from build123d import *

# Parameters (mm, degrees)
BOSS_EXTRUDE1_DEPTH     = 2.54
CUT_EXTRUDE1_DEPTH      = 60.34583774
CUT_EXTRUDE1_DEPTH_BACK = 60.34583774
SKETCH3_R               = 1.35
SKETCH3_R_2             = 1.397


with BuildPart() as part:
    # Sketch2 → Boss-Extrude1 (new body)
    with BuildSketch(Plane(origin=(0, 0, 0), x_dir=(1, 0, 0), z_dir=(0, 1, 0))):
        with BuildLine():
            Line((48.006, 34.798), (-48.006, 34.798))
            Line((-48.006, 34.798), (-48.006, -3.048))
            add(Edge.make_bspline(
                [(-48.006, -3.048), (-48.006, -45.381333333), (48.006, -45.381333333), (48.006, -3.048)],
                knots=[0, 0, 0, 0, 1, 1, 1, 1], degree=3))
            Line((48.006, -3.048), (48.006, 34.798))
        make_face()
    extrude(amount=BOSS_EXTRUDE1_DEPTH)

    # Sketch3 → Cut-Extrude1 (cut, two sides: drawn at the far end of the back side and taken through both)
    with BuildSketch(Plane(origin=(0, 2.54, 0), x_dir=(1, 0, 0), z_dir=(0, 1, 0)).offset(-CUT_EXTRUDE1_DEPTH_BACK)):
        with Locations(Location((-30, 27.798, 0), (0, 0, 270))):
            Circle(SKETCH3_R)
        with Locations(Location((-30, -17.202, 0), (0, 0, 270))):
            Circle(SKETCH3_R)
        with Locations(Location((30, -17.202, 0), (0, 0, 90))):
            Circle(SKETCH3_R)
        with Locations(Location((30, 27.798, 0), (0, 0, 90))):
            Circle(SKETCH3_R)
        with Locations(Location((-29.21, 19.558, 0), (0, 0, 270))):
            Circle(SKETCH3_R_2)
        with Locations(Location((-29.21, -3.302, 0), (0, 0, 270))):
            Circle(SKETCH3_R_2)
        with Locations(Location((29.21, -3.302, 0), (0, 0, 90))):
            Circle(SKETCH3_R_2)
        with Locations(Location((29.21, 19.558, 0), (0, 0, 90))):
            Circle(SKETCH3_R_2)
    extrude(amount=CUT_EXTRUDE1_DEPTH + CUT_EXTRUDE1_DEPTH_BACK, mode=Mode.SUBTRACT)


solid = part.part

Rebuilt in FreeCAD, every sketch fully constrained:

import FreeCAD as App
import Part
import Sketcher
from FreeCAD import Vector
Q = App.Units.Quantity

doc = App.newDocument("Part")
body = doc.addObject("PartDesign::Body", "Body")

sketch1 = body.newObject("Sketcher::SketchObject", "Sketch")
sketch1.AttachmentSupport = (doc.getObject("XZ_Plane"), [""])
sketch1.MapMode = "FlatFace"
sketch1.addGeometry([
    Part.LineSegment(Vector(48.006, -34.798, 0), Vector(-48.006, -34.798, 0)),
    Part.LineSegment(Vector(-48.006, -34.798, 0), Vector(-48.006, 3.048, 0)),
    Part.BSplineCurve([Vector(-48.006, 3.048, 0), Vector(-48.006, 45.381333, 0), Vector(48.006, 45.381333, 0), Vector(48.006, 3.048, 0)], [4, 4], [0, 1], False, 3, [1, 1, 1, 1], False),
    Part.LineSegment(Vector(48.006, 3.048, 0), Vector(48.006, -34.798, 0)),
], False)
sketch1.addConstraint([
    Sketcher.Constraint("Block", 2),
    Sketcher.Constraint("Coincident", 0, 2, 1, 1),
    Sketcher.Constraint("Coincident", 1, 2, 2, 1),
    Sketcher.Constraint("Coincident", 2, 2, 3, 1),
    Sketcher.Constraint("Coincident", 3, 2, 0, 1),
    Sketcher.Constraint("Horizontal", 0),
    Sketcher.Constraint("Vertical", 1),
    Sketcher.Constraint("Vertical", 3),
    Sketcher.Constraint("DistanceY", 1, 1, 1, 2, Q("1.49 in")),
])
pad1 = body.newObject("PartDesign::Pad", "Pad")
pad1.Profile = sketch1
pad1.Length = Q("0.1 in")
pad1.Reversed = True

sketch2 = body.newObject("Sketcher::SketchObject", "Sketch001")
sketch2.AttachmentSupport = (doc.getObject("XZ_Plane"), [""])
sketch2.MapMode = "FlatFace"
sketch2.AttachmentOffset = App.Placement(Vector(0, 0, -0.1 * 25.4), App.Rotation())
sketch2.addGeometry([
    Part.Circle(Vector(-30, -27.8, 0), Vector(0, 0, 1), 1.4),
    Part.Circle(Vector(-30, 17.2, 0), Vector(0, 0, 1), 1.4),
    Part.Circle(Vector(30, 17.2, 0), Vector(0, 0, 1), 1.4),
    Part.Circle(Vector(30, -27.8, 0), Vector(0, 0, 1), 1.4),
    Part.Circle(Vector(-29.2, -19.6, 0), Vector(0, 0, 1), 1.4),
    Part.Circle(Vector(-29.2, 3.3, 0), Vector(0, 0, 1), 1.4),
    Part.Circle(Vector(29.2, 3.3, 0), Vector(0, 0, 1), 1.4),
    Part.Circle(Vector(29.2, -19.6, 0), Vector(0, 0, 1), 1.4),
], False)
sketch2.addConstraint([
    Sketcher.Constraint("Equal", 0, 1),
    Sketcher.Constraint("Equal", 1, 2),
    Sketcher.Constraint("Equal", 2, 3),
    Sketcher.Constraint("Equal", 4, 5),
    Sketcher.Constraint("Equal", 5, 6),
    Sketcher.Constraint("Equal", 6, 7),
    Sketcher.Constraint("Symmetric", 1, 3, 2, 3, -2),
    Sketcher.Constraint("Symmetric", 0, 3, 3, 3, -2),
    Sketcher.Constraint("Symmetric", 5, 3, 6, 3, -2),
    Sketcher.Constraint("Symmetric", 4, 3, 7, 3, -2),
    Sketcher.Constraint("Vertical", 0, 3, 1, 3),
    Sketcher.Constraint("Vertical", 4, 3, 5, 3),
    Sketcher.Constraint("Diameter", 4, Q("0.11 in")),
    Sketcher.Constraint("DistanceY", 4, 3, 5, 3, Q("0.9 in")),
    Sketcher.Constraint("DistanceX", 5, 3, 6, 3, Q("2.3 in")),
    Sketcher.Constraint("Diameter", 0, Q("2.7 mm")),
    Sketcher.Constraint("DistanceY", 4, 3, -1, 1, Q("0.77 in")),
    Sketcher.Constraint("DistanceX", 0, 3, -1, 1, Q("30 mm")),
    Sketcher.Constraint("DistanceY", 0, 3, -1, 1, Q("27.798 mm")),
    Sketcher.Constraint("DistanceY", -1, 1, 1, 3, Q("17.202 mm")),
])
pocket1 = body.newObject("PartDesign::Pocket", "Pocket")
pocket1.Profile = sketch2
pocket1.Type = "ThroughAll"
pocket1.Midplane = True

doc.recompute()
